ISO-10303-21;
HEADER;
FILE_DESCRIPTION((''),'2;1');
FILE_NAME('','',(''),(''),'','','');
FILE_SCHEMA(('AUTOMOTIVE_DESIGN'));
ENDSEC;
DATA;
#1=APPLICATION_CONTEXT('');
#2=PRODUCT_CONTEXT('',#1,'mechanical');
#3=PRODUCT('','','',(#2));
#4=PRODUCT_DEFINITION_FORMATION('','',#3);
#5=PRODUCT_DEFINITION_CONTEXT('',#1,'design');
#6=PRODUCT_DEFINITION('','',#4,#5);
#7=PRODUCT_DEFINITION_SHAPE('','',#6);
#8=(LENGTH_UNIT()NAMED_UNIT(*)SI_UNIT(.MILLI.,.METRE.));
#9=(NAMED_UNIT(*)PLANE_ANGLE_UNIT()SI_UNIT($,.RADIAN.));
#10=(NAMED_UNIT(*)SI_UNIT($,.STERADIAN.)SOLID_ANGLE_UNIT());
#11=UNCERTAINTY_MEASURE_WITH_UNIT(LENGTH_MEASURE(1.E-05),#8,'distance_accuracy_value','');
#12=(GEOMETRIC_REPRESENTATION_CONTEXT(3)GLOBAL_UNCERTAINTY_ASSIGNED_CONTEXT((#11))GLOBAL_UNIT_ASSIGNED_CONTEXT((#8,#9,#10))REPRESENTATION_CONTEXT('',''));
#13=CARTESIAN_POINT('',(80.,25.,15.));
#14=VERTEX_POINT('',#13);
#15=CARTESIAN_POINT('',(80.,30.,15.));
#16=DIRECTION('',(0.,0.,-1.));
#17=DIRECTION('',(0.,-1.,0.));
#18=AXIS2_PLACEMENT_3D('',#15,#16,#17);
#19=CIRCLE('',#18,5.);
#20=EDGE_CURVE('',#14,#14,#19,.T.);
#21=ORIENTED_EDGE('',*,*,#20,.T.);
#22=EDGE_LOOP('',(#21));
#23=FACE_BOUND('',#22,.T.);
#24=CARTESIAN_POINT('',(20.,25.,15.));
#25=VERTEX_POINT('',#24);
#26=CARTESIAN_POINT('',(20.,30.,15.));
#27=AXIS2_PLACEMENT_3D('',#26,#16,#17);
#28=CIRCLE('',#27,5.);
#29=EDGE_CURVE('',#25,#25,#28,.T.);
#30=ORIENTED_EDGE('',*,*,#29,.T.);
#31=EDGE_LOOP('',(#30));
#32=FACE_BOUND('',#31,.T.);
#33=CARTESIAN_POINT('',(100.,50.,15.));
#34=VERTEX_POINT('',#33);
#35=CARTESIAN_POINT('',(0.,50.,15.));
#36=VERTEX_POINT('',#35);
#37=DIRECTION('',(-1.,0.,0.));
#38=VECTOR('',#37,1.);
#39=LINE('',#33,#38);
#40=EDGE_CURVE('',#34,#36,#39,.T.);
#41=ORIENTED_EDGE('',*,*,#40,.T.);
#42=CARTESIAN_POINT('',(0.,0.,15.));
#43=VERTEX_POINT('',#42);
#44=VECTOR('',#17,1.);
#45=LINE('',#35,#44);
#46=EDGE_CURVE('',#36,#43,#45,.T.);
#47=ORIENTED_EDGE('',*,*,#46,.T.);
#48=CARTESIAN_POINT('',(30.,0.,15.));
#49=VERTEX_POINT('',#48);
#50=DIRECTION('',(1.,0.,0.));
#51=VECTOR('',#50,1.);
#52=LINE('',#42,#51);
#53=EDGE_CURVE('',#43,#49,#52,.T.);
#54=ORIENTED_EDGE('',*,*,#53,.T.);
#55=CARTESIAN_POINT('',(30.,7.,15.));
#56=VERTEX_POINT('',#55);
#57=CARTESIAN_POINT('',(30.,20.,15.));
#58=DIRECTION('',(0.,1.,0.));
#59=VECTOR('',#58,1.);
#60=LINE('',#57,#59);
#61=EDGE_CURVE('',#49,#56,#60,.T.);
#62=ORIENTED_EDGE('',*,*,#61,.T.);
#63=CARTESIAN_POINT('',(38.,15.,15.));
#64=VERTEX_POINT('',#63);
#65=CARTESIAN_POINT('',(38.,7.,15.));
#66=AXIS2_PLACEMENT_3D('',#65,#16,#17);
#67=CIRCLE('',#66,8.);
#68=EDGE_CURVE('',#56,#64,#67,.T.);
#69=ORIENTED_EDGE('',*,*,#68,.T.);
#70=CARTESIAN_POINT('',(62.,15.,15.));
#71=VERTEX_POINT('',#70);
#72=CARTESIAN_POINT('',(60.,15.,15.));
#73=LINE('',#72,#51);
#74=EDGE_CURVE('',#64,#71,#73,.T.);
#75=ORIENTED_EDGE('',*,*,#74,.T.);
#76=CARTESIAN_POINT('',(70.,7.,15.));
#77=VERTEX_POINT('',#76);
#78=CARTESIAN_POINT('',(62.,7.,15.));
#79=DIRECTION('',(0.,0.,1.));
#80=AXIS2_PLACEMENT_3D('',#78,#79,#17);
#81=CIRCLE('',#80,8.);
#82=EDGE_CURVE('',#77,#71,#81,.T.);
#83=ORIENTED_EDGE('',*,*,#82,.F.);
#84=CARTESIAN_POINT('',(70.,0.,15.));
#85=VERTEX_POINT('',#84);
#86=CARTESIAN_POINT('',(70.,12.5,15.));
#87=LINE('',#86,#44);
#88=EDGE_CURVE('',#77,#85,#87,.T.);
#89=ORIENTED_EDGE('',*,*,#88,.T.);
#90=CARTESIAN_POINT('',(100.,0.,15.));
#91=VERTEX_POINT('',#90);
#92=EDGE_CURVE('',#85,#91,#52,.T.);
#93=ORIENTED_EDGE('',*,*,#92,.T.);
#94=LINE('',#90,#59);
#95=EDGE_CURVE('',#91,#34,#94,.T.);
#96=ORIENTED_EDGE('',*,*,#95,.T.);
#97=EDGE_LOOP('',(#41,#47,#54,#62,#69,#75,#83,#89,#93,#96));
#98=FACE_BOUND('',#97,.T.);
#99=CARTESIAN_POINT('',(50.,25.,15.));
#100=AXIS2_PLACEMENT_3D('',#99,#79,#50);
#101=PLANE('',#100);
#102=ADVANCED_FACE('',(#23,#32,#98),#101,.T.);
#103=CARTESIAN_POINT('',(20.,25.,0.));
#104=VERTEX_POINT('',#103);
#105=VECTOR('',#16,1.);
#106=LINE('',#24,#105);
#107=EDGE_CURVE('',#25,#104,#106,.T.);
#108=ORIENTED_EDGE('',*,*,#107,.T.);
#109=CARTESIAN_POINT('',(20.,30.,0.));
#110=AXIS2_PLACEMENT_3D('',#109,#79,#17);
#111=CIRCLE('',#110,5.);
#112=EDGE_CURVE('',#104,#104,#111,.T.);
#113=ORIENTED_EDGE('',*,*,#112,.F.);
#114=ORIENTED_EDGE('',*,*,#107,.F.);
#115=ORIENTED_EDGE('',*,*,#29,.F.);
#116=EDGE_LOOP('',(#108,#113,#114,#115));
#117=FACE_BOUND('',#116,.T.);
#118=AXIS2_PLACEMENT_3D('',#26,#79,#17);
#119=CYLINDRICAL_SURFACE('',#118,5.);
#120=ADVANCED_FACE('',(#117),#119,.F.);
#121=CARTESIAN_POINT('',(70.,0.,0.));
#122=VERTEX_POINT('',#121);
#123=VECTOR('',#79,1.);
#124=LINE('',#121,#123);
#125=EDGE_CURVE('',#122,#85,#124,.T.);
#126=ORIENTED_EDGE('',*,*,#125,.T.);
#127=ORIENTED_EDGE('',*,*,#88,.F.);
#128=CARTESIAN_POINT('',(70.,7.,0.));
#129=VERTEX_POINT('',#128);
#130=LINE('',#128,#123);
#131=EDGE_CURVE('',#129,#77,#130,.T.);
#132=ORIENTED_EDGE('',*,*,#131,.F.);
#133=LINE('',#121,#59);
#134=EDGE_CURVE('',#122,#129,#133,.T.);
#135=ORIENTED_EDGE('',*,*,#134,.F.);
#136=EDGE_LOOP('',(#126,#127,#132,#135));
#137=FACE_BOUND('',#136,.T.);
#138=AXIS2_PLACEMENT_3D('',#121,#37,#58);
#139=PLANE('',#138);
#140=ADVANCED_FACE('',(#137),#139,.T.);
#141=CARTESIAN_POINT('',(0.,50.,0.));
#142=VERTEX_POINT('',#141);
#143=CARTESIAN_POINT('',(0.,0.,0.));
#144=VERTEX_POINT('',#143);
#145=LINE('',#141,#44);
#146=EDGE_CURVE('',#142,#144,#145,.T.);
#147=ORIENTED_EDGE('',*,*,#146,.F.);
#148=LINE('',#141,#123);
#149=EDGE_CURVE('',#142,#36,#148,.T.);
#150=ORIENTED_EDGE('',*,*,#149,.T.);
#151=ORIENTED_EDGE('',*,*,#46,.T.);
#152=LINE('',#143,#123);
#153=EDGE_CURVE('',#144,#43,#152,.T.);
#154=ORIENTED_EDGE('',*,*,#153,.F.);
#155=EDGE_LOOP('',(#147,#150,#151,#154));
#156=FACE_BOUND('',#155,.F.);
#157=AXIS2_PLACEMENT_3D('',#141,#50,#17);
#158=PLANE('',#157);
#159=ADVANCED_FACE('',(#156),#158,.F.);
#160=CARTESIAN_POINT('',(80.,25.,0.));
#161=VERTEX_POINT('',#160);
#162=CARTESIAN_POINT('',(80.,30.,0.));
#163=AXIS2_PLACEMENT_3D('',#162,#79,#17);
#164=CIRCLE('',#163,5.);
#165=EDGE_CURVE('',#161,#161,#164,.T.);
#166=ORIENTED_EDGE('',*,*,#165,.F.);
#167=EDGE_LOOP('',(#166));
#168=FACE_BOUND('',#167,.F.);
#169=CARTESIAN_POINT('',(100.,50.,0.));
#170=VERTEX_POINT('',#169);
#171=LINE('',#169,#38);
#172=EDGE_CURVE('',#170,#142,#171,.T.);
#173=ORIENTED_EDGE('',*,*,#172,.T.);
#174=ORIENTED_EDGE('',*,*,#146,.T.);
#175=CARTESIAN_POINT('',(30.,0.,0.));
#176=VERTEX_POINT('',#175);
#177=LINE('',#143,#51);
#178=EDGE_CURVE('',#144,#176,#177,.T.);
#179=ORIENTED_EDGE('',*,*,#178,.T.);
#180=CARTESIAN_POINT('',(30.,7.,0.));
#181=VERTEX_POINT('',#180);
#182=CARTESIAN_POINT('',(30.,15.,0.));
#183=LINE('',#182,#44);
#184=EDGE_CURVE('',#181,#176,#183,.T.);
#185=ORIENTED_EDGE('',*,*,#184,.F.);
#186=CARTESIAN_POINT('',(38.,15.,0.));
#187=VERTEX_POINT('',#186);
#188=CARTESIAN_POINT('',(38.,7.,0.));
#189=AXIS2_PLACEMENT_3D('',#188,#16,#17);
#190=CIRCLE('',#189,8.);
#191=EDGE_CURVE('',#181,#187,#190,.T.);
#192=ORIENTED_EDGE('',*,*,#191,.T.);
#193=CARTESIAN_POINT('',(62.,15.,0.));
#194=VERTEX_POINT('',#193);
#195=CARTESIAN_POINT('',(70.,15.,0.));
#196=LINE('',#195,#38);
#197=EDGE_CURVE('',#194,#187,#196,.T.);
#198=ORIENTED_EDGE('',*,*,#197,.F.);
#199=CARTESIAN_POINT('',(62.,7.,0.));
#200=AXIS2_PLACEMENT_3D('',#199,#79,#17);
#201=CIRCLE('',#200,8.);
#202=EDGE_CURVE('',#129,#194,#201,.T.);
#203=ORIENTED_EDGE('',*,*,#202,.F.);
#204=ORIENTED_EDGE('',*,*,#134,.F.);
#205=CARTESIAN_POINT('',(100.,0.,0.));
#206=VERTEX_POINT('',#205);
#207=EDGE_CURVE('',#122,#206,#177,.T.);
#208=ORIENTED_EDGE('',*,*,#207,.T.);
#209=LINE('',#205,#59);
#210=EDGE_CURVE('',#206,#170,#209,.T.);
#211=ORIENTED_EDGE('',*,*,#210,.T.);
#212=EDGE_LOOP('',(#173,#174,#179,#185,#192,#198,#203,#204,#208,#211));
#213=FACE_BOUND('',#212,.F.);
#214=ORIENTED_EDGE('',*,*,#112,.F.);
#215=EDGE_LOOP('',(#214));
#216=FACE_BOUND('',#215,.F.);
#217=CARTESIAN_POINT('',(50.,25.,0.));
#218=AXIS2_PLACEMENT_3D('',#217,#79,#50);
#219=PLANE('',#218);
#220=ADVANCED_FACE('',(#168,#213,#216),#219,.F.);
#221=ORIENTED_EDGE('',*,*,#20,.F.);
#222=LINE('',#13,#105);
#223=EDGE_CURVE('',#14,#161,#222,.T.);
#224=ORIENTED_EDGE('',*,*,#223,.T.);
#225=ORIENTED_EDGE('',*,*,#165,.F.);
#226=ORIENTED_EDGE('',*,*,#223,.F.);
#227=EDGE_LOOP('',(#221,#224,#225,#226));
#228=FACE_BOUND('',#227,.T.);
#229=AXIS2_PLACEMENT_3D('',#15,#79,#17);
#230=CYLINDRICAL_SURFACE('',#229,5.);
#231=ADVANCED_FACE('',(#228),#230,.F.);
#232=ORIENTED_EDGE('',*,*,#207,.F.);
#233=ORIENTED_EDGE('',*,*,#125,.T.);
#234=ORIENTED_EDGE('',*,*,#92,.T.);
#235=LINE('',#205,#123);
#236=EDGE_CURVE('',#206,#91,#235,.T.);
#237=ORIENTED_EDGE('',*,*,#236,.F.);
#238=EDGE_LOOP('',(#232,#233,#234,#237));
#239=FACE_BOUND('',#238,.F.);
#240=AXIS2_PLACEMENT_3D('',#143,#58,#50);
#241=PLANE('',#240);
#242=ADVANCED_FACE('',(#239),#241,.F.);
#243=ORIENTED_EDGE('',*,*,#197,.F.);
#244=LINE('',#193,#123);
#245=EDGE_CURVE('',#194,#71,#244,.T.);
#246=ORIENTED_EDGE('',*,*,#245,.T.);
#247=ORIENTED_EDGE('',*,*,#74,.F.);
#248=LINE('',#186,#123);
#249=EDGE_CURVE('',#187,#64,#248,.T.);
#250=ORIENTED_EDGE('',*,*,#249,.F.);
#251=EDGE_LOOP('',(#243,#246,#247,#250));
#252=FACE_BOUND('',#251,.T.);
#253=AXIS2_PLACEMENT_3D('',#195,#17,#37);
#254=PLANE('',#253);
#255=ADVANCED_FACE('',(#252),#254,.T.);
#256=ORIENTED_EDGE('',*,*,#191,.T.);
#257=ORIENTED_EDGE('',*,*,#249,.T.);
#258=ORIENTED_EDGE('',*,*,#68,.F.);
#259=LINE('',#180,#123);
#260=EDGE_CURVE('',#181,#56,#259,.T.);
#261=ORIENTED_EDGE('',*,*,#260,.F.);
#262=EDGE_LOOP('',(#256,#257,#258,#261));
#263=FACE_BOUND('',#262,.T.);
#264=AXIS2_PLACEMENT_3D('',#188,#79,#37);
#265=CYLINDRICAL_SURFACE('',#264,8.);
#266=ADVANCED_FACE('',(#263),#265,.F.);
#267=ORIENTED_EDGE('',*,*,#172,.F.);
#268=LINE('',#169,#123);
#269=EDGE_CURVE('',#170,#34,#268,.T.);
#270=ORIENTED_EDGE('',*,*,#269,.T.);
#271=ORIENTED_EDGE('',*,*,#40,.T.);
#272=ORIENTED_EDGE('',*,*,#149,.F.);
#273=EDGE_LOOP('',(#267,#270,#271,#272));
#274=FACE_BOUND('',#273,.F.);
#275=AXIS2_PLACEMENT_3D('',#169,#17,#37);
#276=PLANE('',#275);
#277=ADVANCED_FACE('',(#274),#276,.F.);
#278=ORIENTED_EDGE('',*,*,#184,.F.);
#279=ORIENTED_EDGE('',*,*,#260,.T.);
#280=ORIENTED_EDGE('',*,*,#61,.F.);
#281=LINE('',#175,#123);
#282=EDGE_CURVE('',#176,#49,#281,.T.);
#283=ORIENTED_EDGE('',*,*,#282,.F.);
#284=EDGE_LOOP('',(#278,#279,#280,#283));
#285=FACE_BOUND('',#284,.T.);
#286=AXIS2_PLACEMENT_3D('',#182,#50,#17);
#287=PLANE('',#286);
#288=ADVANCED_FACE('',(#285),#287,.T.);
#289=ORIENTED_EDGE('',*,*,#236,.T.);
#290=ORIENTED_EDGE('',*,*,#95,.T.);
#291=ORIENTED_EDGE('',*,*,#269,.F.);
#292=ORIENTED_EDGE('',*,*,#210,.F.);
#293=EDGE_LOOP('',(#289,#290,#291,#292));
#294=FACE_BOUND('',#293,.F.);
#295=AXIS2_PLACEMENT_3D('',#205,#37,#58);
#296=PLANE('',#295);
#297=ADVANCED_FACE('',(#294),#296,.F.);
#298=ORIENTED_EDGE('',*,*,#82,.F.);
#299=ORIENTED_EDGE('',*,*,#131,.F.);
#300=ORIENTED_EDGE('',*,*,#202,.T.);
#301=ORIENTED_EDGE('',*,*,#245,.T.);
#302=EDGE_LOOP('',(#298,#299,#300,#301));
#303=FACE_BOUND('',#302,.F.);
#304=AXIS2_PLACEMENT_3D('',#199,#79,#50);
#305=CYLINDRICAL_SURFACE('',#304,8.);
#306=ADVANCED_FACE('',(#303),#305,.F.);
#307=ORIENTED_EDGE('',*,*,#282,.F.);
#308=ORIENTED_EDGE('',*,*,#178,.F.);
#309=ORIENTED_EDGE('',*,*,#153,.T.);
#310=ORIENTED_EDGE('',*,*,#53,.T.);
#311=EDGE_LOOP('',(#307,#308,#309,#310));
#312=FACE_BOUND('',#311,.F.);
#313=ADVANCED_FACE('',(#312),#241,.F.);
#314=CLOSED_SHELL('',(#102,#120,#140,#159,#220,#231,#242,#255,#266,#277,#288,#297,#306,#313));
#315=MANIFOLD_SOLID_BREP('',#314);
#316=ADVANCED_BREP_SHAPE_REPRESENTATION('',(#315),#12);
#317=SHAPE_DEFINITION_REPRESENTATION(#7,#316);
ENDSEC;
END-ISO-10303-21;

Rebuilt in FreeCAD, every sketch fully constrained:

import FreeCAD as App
import Part
import Sketcher

V = App.Vector


def edges_at(feature, points):
    """Names of the edges that pass closest to the given points."""
    edges = feature.Shape.Edges
    near = lambda p: min(range(len(edges)), key=lambda i: edges[i].distToShape(Part.Vertex(*p))[0])
    return sorted({f"Edge{near(p) + 1}" for p in points})

doc = App.newDocument("Part")
body = doc.addObject("PartDesign::Body", "Body")

sketch1 = doc.addObject("Sketcher::SketchObject", "Sketch")
body.addObject(sketch1)
sketch1.AttachmentSupport = (doc.XY_Plane, [""])
sketch1.MapMode = "FlatFace"
sketch1.addGeometry(Part.LineSegment(V(0, 50, 0), V(0, 0, 0)), False)
sketch1.addGeometry(Part.LineSegment(V(0, 0, 0), V(100, 0, 0)), False)
sketch1.addGeometry(Part.LineSegment(V(100, 0, 0), V(100, 50, 0)), False)
sketch1.addGeometry(Part.LineSegment(V(100, 50, 0), V(0, 50, 0)), False)
sketch1.addConstraint(Sketcher.Constraint("Coincident", 0, 2, 1, 1))
sketch1.addConstraint(Sketcher.Constraint("Coincident", 1, 2, 2, 1))
sketch1.addConstraint(Sketcher.Constraint("Coincident", 2, 2, 3, 1))
sketch1.addConstraint(Sketcher.Constraint("Coincident", 3, 2, 0, 1))
sketch1.addConstraint(Sketcher.Constraint("Vertical", 0))
sketch1.addConstraint(Sketcher.Constraint("Horizontal", 1))
sketch1.addConstraint(Sketcher.Constraint("Vertical", 2))
sketch1.addConstraint(Sketcher.Constraint("Horizontal", 3))
sketch1.addConstraint(Sketcher.Constraint("Coincident", 0, 2, -1, 1))
sketch1.addConstraint(Sketcher.Constraint("DistanceX", 1, 1, 1, 2, 100.0))
sketch1.addConstraint(Sketcher.Constraint("DistanceY", 0, 2, 0, 1, 50.0))
pad1 = doc.addObject("PartDesign::Pad", "Pad")
body.addObject(pad1)
pad1.Profile = sketch1
pad1.Length = 15

sketch2 = doc.addObject("Sketcher::SketchObject", "Sketch001")
body.addObject(sketch2)
sketch2.AttachmentSupport = (doc.XY_Plane, [""])
sketch2.MapMode = "FlatFace"
sketch2.AttachmentOffset = App.Placement(V(0, 0, 15), App.Rotation())
sketch2.addGeometry(Part.Circle(V(80, 30, 0), V(0, 0, 1), 5), False)
sketch2.addConstraint(Sketcher.Constraint("Diameter", 0, 10.0))
sketch2.addConstraint(Sketcher.Constraint("DistanceX", -1, 1, 0, 3, 80.0))
sketch2.addConstraint(Sketcher.Constraint("DistanceY", -1, 1, 0, 3, 30.0))
doc.recompute()
hole = doc.addObject("PartDesign::Hole", "Hole")
body.addObject(hole)
hole.Profile = sketch2
hole.ThreadType = "None"
hole.Diameter = 10
hole.DepthType = "ThroughAll"

sketch3 = doc.addObject("Sketcher::SketchObject", "Sketch002")
body.addObject(sketch3)
sketch3.AttachmentSupport = (doc.XY_Plane, [""])
sketch3.MapMode = "FlatFace"
sketch3.AttachmentOffset = App.Placement(V(0, 0, 15), App.Rotation())
sketch3.addGeometry(Part.Circle(V(20, 30, 0), V(0, 0, 1), 5), False)
sketch3.addConstraint(Sketcher.Constraint("Diameter", 0, 10.0))
sketch3.addConstraint(Sketcher.Constraint("DistanceX", -1, 1, 0, 3, 20.0))
sketch3.addConstraint(Sketcher.Constraint("DistanceY", -1, 1, 0, 3, 30.0))
doc.recompute()
hole2 = doc.addObject("PartDesign::Hole", "Hole001")
body.addObject(hole2)
hole2.Profile = sketch3
hole2.ThreadType = "None"
hole2.Diameter = 10
hole2.DepthType = "ThroughAll"

sketch4 = doc.addObject("Sketcher::SketchObject", "Sketch003")
body.addObject(sketch4)
sketch4.AttachmentSupport = (doc.XY_Plane, [""])
sketch4.MapMode = "FlatFace"
sketch4.addGeometry(Part.LineSegment(V(70, 15, 0), V(70, 0, 0)), False)
sketch4.addGeometry(Part.LineSegment(V(70, 0, 0), V(30, 0, 0)), False)
sketch4.addGeometry(Part.LineSegment(V(30, 0, 0), V(30, 15, 0)), False)
sketch4.addGeometry(Part.LineSegment(V(30, 15, 0), V(70, 15, 0)), False)
sketch4.addConstraint(Sketcher.Constraint("Coincident", 0, 2, 1, 1))
sketch4.addConstraint(Sketcher.Constraint("Coincident", 1, 2, 2, 1))
sketch4.addConstraint(Sketcher.Constraint("Coincident", 2, 2, 3, 1))
sketch4.addConstraint(Sketcher.Constraint("Coincident", 3, 2, 0, 1))
sketch4.addConstraint(Sketcher.Constraint("Vertical", 0))
sketch4.addConstraint(Sketcher.Constraint("Horizontal", 1))
sketch4.addConstraint(Sketcher.Constraint("Vertical", 2))
sketch4.addConstraint(Sketcher.Constraint("Horizontal", 3))
sketch4.addConstraint(Sketcher.Constraint("PointOnObject", 0, 2, -1))
sketch4.addConstraint(Sketcher.Constraint("DistanceX", 1, 2, 1, 1, 40.0))
sketch4.addConstraint(Sketcher.Constraint("DistanceY", 0, 2, 0, 1, 15.0))
sketch4.addConstraint(Sketcher.Constraint("DistanceX", -1, 1, 0, 2, 70.0))
pocket1 = doc.addObject("PartDesign::Pocket", "Pocket")
body.addObject(pocket1)
pocket1.Profile = sketch4
pocket1.Type = "ThroughAll"
pocket1.Reversed = True
doc.recompute()

fillet = doc.addObject("PartDesign::Fillet", "Fillet")
body.addObject(fillet)
fillet.Base = (pocket1, edges_at(pocket1, [(70, 15, 7.5), (30, 15, 7.5)]))
fillet.Radius = 8

doc.recompute()
